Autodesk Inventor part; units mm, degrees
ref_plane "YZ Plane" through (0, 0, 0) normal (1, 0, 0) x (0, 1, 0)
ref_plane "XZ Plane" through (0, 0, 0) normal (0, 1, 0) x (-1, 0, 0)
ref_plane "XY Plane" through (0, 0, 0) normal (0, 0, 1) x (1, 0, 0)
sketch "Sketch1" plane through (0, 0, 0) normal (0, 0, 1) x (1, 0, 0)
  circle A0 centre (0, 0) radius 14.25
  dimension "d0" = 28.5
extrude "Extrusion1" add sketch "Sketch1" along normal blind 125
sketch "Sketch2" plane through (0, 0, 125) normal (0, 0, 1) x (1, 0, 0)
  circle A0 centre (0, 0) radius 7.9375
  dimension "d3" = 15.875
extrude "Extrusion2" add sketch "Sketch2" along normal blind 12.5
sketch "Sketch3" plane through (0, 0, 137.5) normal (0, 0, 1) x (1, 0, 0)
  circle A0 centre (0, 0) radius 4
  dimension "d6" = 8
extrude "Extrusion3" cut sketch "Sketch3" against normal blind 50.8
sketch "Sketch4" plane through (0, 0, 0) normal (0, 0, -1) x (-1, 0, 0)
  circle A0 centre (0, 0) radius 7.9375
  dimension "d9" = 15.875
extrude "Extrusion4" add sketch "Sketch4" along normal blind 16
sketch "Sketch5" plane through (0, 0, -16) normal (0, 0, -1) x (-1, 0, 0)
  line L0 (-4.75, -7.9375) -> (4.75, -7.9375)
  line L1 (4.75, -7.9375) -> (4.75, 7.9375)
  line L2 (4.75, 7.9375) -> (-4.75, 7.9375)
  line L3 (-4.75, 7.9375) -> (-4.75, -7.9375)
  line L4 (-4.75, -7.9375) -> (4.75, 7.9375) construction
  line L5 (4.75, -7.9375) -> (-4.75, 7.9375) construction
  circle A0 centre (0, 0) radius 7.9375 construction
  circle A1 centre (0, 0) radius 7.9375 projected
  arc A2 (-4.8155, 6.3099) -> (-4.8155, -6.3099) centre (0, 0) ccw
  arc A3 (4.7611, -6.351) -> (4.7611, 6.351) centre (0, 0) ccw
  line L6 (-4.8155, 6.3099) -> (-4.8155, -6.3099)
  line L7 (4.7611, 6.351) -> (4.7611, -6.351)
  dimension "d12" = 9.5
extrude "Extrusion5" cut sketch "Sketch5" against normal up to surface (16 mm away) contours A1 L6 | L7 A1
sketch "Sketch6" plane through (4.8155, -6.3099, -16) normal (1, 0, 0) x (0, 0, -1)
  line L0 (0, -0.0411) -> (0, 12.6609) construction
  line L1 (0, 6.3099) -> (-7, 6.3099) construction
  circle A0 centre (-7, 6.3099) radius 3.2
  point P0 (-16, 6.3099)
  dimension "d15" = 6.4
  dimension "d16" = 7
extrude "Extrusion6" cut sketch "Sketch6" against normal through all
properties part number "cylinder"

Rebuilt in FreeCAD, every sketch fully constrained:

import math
import FreeCAD as App
import Part
import Sketcher

V = App.Vector
Q = App.Units.Quantity

doc = App.newDocument("Part")
body = doc.addObject("PartDesign::Body", "Body")

sketch1 = body.newObject("Sketcher::SketchObject", "Sketch")
sketch1.AttachmentSupport = (doc.getObject("XY_Plane"), [""])
sketch1.MapMode = "FlatFace"
sketch1.addGeometry(Part.Circle(V(0, 0, 0), V(0, 0, 1), 14), False)
sketch1.addConstraint([
    Sketcher.Constraint("Coincident", 0, 3, -1, 1),
    Sketcher.Constraint("Diameter", 0, Q("28.5 mm")),
])
pad1 = body.newObject("PartDesign::Pad", "Pad")
pad1.Profile = sketch1
pad1.Length = 125

sketch2 = body.newObject("Sketcher::SketchObject", "Sketch001")
sketch2.AttachmentSupport = (doc.getObject("XY_Plane"), [""])
sketch2.MapMode = "FlatFace"
sketch2.AttachmentOffset = App.Placement(V(0, 0, 125), App.Rotation())
sketch2.addGeometry(Part.Circle(V(0, 0, 0), V(0, 0, 1), 8), False)
sketch2.addConstraint([
    Sketcher.Constraint("Coincident", 0, 3, -1, 1),
    Sketcher.Constraint("Diameter", 0, Q("15.875 mm")),
])
pad2 = body.newObject("PartDesign::Pad", "Pad001")
pad2.Profile = sketch2
pad2.Length = 12.5

sketch3 = body.newObject("Sketcher::SketchObject", "Sketch002")
sketch3.AttachmentSupport = (doc.getObject("XY_Plane"), [""])
sketch3.MapMode = "FlatFace"
sketch3.AttachmentOffset = App.Placement(V(0, 0, 137.5), App.Rotation())
sketch3.addGeometry(Part.Circle(V(0, 0, 0), V(0, 0, 1), 4), False)
sketch3.addConstraint([
    Sketcher.Constraint("Coincident", 0, 3, -1, 1),
    Sketcher.Constraint("Diameter", 0, Q("8 mm")),
])
pocket1 = body.newObject("PartDesign::Pocket", "Pocket")
pocket1.Profile = sketch3
pocket1.Length = 50.8

sketch4 = body.newObject("Sketcher::SketchObject", "Sketch003")
sketch4.AttachmentSupport = (doc.getObject("XY_Plane"), [""])
sketch4.MapMode = "FlatFace"
sketch4.addGeometry(Part.Circle(V(0, 0, 0), V(0, 0, 1), 8), False)
sketch4.addConstraint([
    Sketcher.Constraint("Coincident", 0, 3, -1, 1),
    Sketcher.Constraint("Diameter", 0, Q("15.875 mm")),
])
pad3 = body.newObject("PartDesign::Pad", "Pad002")
pad3.Profile = sketch4
pad3.Length = 16
pad3.Reversed = True

sketch5 = body.newObject("Sketcher::SketchObject", "Sketch004")
sketch5.AttachmentSupport = (doc.getObject("XY_Plane"), [""])
sketch5.MapMode = "FlatFace"
sketch5.AttachmentOffset = App.Placement(V(0, 0, -16), App.Rotation())
sketch5.addGeometry([
    Part.ArcOfCircle(Part.Circle(V(0, 0, 0), V(0, 0, 1), 8), math.radians(-53), math.radians(53)),
    Part.LineSegment(V(5, 6, 0), V(5, -6, 0)),
    Part.LineSegment(V(-5, 6, 0), V(-5, -6, 0)),
    Part.ArcOfCircle(Part.Circle(V(0, 0, 0), V(0, 0, 1), 8), math.radians(127), math.radians(233)),
], False)
sketch5.addConstraint([
    Sketcher.Constraint("Coincident", 0, 1, 1, 2),
    Sketcher.Constraint("Coincident", 1, 1, 0, 2),
    Sketcher.Constraint("Coincident", 2, 1, 3, 1),
    Sketcher.Constraint("Coincident", 3, 2, 2, 2),
    Sketcher.Constraint("Vertical", 1),
    Sketcher.Constraint("Vertical", 2),
    Sketcher.Constraint("Coincident", 0, 3, -1, 1),
    Sketcher.Constraint("Coincident", 3, 3, -1, 1),
    Sketcher.Constraint("Equal", 0, 3),
    Sketcher.Constraint("Radius", 0, Q("7.9375 mm")),
    Sketcher.Constraint("DistanceY", 2, 2, 2, 1, Q("12.702 mm")),
    Sketcher.Constraint("DistanceY", 0, 1, -1, 1, Q("6.31 mm")),
])
pocket2 = body.newObject("PartDesign::Pocket", "Pocket001")
pocket2.Profile = sketch5
pocket2.Length = 16
pocket2.Reversed = True

sketch6 = body.newObject("Sketcher::SketchObject", "Sketch005")
sketch6.AttachmentSupport = (doc.getObject("YZ_Plane"), [""])
sketch6.MapMode = "FlatFace"
sketch6.AttachmentOffset = App.Placement(V(0, 0, 4.8155), App.Rotation())
sketch6.addGeometry(Part.Circle(V(0, -9, 0), V(0, 0, 1), 3.2), False)
sketch6.addConstraint([
    Sketcher.Constraint("PointOnObject", 0, 3, -2),
    Sketcher.Constraint("Diameter", 0, Q("6.4 mm")),
    Sketcher.Constraint("DistanceY", 0, 3, -1, 1, Q("9 mm")),
])
pocket3 = body.newObject("PartDesign::Pocket", "Pocket002")
pocket3.Profile = sketch6
pocket3.Type = "ThroughAll"

doc.recompute()
